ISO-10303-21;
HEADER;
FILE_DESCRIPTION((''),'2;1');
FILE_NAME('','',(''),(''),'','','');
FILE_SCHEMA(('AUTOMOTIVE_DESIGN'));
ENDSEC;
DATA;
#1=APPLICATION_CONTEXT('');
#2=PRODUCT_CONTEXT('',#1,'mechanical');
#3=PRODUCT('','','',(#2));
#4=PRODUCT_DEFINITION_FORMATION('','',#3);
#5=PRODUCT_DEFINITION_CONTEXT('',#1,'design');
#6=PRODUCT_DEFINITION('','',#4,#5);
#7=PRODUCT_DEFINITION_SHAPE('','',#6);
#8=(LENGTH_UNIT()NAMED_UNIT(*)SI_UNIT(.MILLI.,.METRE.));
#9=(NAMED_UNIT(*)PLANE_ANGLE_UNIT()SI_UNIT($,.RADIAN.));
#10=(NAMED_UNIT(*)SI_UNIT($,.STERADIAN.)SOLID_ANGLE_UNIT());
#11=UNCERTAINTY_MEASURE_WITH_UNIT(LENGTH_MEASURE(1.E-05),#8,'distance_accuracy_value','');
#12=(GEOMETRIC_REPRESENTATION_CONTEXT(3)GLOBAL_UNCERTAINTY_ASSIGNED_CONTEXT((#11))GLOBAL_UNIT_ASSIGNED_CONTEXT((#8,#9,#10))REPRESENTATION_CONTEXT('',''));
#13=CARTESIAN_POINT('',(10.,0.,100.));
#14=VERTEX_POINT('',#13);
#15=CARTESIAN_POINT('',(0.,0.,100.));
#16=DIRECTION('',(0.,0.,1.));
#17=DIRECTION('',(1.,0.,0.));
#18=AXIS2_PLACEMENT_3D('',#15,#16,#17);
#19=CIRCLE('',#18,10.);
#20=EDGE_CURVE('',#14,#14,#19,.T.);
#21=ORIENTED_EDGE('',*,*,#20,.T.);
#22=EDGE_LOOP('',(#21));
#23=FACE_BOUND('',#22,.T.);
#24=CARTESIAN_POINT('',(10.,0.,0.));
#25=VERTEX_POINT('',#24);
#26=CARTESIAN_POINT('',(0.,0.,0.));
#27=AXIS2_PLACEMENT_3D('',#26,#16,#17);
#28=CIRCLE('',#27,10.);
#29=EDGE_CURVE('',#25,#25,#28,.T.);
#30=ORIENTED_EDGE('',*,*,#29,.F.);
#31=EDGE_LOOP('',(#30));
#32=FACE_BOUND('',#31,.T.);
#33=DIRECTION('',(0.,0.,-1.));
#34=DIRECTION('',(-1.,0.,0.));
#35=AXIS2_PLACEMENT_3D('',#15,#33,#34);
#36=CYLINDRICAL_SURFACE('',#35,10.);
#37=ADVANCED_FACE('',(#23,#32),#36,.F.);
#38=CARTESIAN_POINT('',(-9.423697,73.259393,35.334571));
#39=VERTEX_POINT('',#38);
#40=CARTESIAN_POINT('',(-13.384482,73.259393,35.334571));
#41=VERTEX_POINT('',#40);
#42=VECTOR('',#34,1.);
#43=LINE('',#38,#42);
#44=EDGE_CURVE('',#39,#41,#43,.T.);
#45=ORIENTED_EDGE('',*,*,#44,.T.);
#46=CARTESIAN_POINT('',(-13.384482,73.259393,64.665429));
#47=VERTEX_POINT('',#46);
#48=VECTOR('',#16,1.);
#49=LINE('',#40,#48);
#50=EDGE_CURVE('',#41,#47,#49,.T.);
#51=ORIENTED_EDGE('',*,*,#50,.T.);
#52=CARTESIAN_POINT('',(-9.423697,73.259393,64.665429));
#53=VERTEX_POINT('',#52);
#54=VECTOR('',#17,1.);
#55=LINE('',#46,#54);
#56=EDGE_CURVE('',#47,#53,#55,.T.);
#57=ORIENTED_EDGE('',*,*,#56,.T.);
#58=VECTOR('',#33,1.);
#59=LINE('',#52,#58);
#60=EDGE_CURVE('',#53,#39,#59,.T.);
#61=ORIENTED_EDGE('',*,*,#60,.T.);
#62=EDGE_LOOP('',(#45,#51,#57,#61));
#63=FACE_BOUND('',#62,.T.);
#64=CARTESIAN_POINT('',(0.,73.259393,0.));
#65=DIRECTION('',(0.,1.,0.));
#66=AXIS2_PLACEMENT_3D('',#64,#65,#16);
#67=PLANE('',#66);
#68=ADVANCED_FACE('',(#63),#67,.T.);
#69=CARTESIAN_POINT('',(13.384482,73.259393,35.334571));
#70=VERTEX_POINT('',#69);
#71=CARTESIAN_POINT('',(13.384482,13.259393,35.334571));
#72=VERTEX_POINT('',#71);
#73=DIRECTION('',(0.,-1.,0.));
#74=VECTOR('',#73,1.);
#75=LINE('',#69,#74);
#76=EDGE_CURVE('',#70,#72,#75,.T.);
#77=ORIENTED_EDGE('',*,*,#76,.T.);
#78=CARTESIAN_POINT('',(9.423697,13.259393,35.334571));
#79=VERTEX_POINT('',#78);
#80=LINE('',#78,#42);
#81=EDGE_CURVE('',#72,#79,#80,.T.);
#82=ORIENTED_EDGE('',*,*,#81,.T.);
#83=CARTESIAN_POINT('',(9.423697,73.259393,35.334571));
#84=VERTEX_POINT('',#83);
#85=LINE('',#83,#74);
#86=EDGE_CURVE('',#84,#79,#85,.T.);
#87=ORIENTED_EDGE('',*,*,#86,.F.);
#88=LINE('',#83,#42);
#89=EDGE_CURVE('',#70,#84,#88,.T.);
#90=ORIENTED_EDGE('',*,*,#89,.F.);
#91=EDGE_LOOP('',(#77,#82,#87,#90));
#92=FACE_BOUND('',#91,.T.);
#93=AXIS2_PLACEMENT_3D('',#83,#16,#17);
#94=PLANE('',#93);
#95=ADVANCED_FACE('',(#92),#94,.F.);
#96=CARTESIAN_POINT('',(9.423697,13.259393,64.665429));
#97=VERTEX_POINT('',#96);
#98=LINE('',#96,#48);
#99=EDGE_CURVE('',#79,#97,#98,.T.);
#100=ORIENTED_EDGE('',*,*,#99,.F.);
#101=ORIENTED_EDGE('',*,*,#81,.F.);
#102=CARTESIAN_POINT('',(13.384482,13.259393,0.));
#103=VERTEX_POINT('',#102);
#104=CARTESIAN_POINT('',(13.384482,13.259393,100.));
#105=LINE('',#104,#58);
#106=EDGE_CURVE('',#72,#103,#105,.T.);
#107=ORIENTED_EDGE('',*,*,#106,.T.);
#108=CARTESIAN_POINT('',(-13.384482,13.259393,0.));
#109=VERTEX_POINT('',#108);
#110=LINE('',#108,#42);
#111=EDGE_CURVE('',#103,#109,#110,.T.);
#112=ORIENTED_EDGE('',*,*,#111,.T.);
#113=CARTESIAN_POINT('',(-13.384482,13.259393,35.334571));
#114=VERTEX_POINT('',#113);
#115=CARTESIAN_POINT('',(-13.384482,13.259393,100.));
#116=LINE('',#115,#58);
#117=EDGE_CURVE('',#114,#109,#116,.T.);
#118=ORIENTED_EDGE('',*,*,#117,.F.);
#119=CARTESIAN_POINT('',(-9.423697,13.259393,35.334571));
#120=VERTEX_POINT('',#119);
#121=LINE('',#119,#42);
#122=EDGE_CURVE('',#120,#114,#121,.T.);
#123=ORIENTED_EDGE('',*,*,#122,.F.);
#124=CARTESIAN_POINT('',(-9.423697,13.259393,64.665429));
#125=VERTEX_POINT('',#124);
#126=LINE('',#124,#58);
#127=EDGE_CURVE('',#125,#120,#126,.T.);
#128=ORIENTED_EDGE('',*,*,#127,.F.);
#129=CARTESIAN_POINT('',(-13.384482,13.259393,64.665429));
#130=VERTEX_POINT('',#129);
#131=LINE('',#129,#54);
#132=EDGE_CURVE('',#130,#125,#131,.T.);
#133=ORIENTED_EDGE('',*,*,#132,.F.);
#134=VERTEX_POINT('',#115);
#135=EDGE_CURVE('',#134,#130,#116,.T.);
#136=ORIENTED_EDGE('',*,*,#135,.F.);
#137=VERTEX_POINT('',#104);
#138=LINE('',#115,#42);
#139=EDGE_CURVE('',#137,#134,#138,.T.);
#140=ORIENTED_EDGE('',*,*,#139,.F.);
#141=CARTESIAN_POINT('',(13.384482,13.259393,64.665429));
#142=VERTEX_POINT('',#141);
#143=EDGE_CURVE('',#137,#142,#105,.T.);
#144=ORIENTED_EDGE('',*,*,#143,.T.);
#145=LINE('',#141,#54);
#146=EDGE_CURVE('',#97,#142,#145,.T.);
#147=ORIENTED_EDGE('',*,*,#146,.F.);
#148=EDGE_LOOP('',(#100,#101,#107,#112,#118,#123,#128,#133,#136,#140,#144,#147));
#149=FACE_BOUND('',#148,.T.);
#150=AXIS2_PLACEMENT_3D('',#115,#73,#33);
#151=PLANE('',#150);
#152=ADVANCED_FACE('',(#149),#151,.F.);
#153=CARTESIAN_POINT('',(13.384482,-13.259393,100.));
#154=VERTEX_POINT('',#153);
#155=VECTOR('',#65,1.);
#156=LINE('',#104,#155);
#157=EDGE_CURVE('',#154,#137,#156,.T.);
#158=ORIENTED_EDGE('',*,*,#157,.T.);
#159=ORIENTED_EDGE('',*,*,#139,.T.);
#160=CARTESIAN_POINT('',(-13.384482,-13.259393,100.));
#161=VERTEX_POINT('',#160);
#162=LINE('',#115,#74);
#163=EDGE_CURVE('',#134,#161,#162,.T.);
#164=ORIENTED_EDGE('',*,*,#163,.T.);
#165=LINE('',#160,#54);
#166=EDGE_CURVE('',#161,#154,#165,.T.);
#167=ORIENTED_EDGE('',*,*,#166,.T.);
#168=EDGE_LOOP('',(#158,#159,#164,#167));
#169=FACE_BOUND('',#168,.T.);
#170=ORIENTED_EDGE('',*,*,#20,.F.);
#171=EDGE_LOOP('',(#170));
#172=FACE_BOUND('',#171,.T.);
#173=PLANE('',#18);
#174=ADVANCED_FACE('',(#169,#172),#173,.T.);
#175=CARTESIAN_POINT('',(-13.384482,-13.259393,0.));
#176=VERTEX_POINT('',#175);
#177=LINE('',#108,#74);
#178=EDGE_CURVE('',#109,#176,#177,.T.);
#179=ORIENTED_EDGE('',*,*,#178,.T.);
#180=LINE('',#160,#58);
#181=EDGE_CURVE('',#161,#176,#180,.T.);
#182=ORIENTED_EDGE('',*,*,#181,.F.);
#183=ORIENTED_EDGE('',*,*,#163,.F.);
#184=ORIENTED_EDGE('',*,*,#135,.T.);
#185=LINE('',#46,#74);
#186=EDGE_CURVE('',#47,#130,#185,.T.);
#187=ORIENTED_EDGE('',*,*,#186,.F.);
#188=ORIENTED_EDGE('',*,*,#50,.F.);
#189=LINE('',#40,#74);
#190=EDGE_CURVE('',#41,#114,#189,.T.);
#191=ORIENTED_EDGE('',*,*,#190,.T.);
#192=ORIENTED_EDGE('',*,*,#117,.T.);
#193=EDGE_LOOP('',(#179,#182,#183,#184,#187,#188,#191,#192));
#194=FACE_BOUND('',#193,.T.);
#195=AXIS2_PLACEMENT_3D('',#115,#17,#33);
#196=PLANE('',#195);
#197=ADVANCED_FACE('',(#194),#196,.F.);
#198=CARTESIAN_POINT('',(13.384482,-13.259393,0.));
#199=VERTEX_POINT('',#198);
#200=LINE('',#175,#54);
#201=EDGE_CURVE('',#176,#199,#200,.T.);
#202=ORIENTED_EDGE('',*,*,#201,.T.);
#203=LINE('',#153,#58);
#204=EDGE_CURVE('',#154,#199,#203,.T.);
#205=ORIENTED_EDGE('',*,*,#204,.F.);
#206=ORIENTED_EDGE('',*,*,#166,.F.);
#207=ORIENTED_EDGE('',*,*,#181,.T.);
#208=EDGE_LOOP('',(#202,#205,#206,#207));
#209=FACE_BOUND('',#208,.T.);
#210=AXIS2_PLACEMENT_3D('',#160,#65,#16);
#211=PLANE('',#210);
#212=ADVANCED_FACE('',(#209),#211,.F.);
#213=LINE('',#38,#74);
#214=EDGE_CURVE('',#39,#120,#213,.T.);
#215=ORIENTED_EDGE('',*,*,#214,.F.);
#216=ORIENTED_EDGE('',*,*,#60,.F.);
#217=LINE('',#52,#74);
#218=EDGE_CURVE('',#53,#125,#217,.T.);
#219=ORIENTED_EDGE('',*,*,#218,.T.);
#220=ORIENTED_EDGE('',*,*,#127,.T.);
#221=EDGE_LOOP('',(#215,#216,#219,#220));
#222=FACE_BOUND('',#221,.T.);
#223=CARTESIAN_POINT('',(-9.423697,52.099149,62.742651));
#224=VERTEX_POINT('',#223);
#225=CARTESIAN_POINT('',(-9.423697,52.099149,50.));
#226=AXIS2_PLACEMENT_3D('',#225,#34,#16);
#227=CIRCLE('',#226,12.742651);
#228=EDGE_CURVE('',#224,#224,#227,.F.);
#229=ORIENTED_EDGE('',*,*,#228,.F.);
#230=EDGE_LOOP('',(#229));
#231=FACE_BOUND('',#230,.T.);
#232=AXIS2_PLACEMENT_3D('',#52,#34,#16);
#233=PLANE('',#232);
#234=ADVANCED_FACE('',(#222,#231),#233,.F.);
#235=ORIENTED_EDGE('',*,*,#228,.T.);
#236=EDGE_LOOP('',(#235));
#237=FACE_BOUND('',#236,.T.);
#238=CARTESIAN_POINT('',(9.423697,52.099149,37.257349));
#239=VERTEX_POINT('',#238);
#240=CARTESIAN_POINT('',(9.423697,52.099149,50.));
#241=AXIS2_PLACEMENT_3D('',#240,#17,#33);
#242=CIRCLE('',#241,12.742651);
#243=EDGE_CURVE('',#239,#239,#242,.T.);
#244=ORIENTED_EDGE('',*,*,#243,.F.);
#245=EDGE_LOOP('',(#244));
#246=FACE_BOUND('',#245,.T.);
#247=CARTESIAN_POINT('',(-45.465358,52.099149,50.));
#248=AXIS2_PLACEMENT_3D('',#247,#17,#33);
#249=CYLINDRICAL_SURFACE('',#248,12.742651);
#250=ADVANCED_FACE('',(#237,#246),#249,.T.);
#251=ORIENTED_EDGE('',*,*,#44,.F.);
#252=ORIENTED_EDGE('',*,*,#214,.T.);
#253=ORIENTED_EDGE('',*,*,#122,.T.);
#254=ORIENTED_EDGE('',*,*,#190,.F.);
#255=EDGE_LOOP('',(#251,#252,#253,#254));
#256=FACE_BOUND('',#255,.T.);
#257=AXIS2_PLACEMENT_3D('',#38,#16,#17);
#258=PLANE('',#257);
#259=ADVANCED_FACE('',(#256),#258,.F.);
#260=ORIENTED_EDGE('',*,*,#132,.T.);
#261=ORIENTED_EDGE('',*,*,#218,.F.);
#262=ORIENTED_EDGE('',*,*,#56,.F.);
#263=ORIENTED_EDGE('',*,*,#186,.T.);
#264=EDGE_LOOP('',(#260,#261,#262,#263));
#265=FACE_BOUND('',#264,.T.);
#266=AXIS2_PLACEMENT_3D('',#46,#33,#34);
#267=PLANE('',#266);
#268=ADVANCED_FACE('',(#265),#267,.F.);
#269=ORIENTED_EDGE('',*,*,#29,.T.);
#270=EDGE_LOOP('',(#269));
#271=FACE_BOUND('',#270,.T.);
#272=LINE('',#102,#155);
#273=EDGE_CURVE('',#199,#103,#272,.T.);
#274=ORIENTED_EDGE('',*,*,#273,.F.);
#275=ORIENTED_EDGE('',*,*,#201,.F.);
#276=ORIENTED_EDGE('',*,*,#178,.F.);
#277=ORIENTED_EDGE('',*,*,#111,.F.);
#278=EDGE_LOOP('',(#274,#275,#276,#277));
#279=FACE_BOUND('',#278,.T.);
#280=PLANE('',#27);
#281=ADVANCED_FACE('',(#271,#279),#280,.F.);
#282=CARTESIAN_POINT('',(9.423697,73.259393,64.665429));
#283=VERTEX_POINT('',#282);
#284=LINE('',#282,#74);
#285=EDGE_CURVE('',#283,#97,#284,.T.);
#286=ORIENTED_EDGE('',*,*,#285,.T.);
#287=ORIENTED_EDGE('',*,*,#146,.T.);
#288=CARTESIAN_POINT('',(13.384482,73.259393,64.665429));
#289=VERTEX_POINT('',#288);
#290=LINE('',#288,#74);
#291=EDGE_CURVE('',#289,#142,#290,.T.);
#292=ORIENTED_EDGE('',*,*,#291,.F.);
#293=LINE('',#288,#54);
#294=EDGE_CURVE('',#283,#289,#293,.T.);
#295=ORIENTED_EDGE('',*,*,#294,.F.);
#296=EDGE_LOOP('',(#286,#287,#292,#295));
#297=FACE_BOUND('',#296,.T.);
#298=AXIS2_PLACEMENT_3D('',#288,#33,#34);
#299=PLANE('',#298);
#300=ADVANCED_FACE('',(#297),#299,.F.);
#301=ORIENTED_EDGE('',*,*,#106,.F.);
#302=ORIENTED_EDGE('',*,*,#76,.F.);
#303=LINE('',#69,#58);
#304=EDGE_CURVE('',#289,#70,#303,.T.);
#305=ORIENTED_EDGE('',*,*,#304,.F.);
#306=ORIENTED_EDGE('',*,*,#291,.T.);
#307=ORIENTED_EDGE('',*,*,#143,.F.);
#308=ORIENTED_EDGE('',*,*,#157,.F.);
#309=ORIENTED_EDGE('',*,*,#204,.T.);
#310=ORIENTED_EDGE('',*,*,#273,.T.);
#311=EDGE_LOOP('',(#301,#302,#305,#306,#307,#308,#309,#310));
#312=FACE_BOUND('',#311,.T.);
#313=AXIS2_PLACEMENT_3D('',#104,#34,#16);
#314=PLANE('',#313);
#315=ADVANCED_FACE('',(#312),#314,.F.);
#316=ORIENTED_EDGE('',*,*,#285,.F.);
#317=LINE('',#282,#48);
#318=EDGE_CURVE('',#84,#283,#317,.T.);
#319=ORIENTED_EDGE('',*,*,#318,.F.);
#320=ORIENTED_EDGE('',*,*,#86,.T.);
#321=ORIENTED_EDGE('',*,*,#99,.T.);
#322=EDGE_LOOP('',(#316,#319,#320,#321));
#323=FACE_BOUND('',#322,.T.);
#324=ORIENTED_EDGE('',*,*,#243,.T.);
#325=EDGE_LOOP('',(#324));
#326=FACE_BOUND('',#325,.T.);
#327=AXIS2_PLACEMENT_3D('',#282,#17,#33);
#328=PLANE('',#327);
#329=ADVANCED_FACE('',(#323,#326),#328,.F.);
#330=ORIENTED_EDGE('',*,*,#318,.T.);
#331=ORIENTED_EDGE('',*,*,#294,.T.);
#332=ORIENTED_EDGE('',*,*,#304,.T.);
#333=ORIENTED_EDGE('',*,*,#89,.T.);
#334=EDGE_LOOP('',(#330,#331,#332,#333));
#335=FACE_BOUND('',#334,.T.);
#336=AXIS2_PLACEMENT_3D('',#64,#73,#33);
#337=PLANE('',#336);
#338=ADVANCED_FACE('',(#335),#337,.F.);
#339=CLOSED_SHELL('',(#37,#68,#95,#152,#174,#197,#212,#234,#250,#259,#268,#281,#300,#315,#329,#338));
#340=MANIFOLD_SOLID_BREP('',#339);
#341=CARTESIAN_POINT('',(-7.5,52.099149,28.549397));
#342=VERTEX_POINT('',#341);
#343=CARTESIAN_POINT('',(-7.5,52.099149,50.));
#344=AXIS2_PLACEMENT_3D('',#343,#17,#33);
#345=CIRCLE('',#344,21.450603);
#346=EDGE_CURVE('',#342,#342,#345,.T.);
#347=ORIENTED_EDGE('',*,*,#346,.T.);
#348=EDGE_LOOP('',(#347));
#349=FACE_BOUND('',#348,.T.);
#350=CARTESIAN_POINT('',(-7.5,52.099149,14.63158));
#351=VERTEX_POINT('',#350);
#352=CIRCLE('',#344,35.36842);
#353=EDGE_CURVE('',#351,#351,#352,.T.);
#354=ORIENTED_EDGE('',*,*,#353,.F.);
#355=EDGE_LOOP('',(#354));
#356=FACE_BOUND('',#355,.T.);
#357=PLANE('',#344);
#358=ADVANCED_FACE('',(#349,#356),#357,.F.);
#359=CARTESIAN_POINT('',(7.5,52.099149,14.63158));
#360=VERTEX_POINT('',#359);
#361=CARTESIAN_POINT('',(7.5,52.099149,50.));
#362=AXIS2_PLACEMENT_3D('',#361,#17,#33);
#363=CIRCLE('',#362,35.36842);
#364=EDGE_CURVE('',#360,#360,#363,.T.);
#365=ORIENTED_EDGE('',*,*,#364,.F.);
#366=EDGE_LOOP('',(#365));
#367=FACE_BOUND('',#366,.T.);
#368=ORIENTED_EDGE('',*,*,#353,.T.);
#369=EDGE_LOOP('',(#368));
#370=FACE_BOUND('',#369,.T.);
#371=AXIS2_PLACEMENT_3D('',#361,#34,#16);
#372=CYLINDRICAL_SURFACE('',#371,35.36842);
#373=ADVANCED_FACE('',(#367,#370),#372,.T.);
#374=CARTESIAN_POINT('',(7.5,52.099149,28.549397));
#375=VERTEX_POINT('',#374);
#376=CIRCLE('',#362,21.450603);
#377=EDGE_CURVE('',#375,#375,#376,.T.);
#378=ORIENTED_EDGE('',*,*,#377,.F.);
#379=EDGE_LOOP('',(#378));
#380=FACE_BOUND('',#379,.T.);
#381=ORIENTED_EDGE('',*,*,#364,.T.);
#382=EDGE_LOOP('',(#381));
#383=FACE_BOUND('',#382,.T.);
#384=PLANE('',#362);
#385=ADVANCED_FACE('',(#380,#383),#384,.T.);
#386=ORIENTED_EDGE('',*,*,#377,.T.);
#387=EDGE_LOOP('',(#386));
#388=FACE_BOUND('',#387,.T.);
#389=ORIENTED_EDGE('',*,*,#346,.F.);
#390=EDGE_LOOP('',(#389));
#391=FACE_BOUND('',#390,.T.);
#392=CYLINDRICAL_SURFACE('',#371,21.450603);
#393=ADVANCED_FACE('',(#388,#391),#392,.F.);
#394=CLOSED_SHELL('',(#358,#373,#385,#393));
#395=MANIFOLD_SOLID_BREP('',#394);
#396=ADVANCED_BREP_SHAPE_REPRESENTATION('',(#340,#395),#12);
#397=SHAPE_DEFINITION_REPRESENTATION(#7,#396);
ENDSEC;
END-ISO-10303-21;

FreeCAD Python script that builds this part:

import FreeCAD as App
import Part
import Sketcher

V = App.Vector

doc = App.newDocument("Part")
body = doc.addObject("PartDesign::Body", "Body")

sketch1 = doc.addObject("Sketcher::SketchObject", "Sketch")
body.addObject(sketch1)
sketch1.AttachmentSupport = (doc.XY_Plane, [""])
sketch1.MapMode = "FlatFace"
sketch1.addGeometry([
    Part.LineSegment(V(-13.384482, 13.259393, 0), V(-13.384482, -13.259393, 0)),
    Part.LineSegment(V(-13.384482, -13.259393, 0), V(13.384482, -13.259393, 0)),
    Part.LineSegment(V(13.384482, -13.259393, 0), V(13.384482, 13.259393, 0)),
    Part.LineSegment(V(13.384482, 13.259393, 0), V(-13.384482, 13.259393, 0)),
    Part.Circle(V(0, 0, 0), V(0, 0, 1), 10),
], False)
sketch1.addConstraint([
    Sketcher.Constraint("Coincident", 0, 2, 1, 1),
    Sketcher.Constraint("Coincident", 1, 2, 2, 1),
    Sketcher.Constraint("Coincident", 2, 2, 3, 1),
    Sketcher.Constraint("Coincident", 3, 2, 0, 1),
    Sketcher.Constraint("Vertical", 0),
    Sketcher.Constraint("Horizontal", 1),
    Sketcher.Constraint("Vertical", 2),
    Sketcher.Constraint("Horizontal", 3),
    Sketcher.Constraint("Coincident", 4, 3, -1, 1),
    Sketcher.Constraint("Symmetric", 0, 2, 2, 2, -1, 1),
    Sketcher.Constraint("Diameter", 4, 20.0),
    Sketcher.Constraint("DistanceX", 1, 1, 1, 2, 26.768963),
    Sketcher.Constraint("DistanceY", 0, 2, 0, 1, 26.518786),
])
pad1 = doc.addObject("PartDesign::Pad", "Pad")
body.addObject(pad1)
pad1.Profile = sketch1
pad1.Length = 100

sketch2 = doc.addObject("Sketcher::SketchObject", "Sketch001")
body.addObject(sketch2)
sketch2.AttachmentSupport = (doc.XZ_Plane, [""])
sketch2.MapMode = "FlatFace"
sketch2.AttachmentOffset = App.Placement(V(0, 0, -13.259393), App.Rotation())
sketch2.addGeometry([
    Part.LineSegment(V(-13.384482, 35.334571, 0), V(-13.384482, 64.665429, 0)),
    Part.LineSegment(V(-13.384482, 64.665429, 0), V(-9.423697, 64.665429, 0)),
    Part.LineSegment(V(-9.423697, 64.665429, 0), V(-9.423697, 35.334571, 0)),
    Part.LineSegment(V(-9.423697, 35.334571, 0), V(-13.384482, 35.334571, 0)),
    Part.LineSegment(V(9.423697, 35.334571, 0), V(9.423697, 64.665429, 0)),
    Part.LineSegment(V(9.423697, 64.665429, 0), V(13.384482, 64.665429, 0)),
    Part.LineSegment(V(13.384482, 64.665429, 0), V(13.384482, 35.334571, 0)),
    Part.LineSegment(V(13.384482, 35.334571, 0), V(9.423697, 35.334571, 0)),
], False)
sketch2.addConstraint([
    Sketcher.Constraint("Coincident", 0, 2, 1, 1),
    Sketcher.Constraint("Coincident", 1, 2, 2, 1),
    Sketcher.Constraint("Coincident", 2, 2, 3, 1),
    Sketcher.Constraint("Coincident", 3, 2, 0, 1),
    Sketcher.Constraint("Coincident", 4, 2, 5, 1),
    Sketcher.Constraint("Coincident", 5, 2, 6, 1),
    Sketcher.Constraint("Coincident", 6, 2, 7, 1),
    Sketcher.Constraint("Coincident", 7, 2, 4, 1),
    Sketcher.Constraint("Vertical", 0),
    Sketcher.Constraint("Horizontal", 1),
    Sketcher.Constraint("Vertical", 2),
    Sketcher.Constraint("Horizontal", 3),
    Sketcher.Constraint("Vertical", 4),
    Sketcher.Constraint("Horizontal", 5),
    Sketcher.Constraint("Vertical", 6),
    Sketcher.Constraint("Horizontal", 7),
    Sketcher.Constraint("Symmetric", 1, 2, 4, 2, -2),
    Sketcher.Constraint("Symmetric", 3, 2, 6, 2, -2),
    Sketcher.Constraint("DistanceY", 0, 1, 0, 2, 29.330858),
    Sketcher.Constraint("DistanceX", 1, 1, 1, 2, 3.960784),
    Sketcher.Constraint("DistanceX", 0, 2, -1, 1, 13.384482),
    Sketcher.Constraint("DistanceY", -1, 1, 0, 2, 64.665429),
])
pad2 = doc.addObject("PartDesign::Pad", "Pad001")
body.addObject(pad2)
pad2.Profile = sketch2
pad2.Length = 60
pad2.Reversed = True

sketch3 = doc.addObject("Sketcher::SketchObject", "Sketch002")
body.addObject(sketch3)
sketch3.AttachmentSupport = (doc.YZ_Plane, [""])
sketch3.MapMode = "FlatFace"
sketch3.AttachmentOffset = App.Placement(V(0, 0, 13.384482), App.Rotation())
sketch3.addGeometry(Part.Circle(V(52.099149, 50, 0), V(0, 0, 1), 12.742651), False)
sketch3.addConstraint([
    Sketcher.Constraint("DistanceY", -1, 1, 0, 3, 50.0),
    Sketcher.Constraint("Diameter", 0, 25.485303),
    Sketcher.Constraint("DistanceX", -1, 1, 0, 3, 52.099149),
])
pad3 = doc.addObject("PartDesign::Pad", "Pad002")
body.addObject(pad3)
pad3.Profile = sketch3
pad3.Length = 22.808179
pad3.Reversed = True
body2 = doc.addObject("PartDesign::Body", "Body001")

sketch4 = doc.addObject("Sketcher::SketchObject", "Sketch003")
body2.addObject(sketch4)
sketch4.AttachmentSupport = (doc.getObject("YZ_Plane001"), [""])
sketch4.MapMode = "FlatFace"
sketch4.addGeometry([
    Part.Circle(V(52.099149, 50, 0), V(0, 0, 1), 35.36842),
    Part.Circle(V(52.099149, 50, 0), V(0, 0, 1), 21.450603),
], False)
sketch4.addConstraint([
    Sketcher.Constraint("Coincident", 1, 3, 0, 3),
    Sketcher.Constraint("DistanceY", -1, 1, 0, 3, 50.0),
    Sketcher.Constraint("Diameter", 0, 70.736841),
    Sketcher.Constraint("Diameter", 1, 42.901206),
    Sketcher.Constraint("DistanceX", -1, 1, 0, 3, 52.099149),
])
pad4 = doc.addObject("PartDesign::Pad", "Pad003")
body2.addObject(pad4)
pad4.Profile = sketch4
pad4.Length = 15
pad4.Midplane = True

doc.recompute()
